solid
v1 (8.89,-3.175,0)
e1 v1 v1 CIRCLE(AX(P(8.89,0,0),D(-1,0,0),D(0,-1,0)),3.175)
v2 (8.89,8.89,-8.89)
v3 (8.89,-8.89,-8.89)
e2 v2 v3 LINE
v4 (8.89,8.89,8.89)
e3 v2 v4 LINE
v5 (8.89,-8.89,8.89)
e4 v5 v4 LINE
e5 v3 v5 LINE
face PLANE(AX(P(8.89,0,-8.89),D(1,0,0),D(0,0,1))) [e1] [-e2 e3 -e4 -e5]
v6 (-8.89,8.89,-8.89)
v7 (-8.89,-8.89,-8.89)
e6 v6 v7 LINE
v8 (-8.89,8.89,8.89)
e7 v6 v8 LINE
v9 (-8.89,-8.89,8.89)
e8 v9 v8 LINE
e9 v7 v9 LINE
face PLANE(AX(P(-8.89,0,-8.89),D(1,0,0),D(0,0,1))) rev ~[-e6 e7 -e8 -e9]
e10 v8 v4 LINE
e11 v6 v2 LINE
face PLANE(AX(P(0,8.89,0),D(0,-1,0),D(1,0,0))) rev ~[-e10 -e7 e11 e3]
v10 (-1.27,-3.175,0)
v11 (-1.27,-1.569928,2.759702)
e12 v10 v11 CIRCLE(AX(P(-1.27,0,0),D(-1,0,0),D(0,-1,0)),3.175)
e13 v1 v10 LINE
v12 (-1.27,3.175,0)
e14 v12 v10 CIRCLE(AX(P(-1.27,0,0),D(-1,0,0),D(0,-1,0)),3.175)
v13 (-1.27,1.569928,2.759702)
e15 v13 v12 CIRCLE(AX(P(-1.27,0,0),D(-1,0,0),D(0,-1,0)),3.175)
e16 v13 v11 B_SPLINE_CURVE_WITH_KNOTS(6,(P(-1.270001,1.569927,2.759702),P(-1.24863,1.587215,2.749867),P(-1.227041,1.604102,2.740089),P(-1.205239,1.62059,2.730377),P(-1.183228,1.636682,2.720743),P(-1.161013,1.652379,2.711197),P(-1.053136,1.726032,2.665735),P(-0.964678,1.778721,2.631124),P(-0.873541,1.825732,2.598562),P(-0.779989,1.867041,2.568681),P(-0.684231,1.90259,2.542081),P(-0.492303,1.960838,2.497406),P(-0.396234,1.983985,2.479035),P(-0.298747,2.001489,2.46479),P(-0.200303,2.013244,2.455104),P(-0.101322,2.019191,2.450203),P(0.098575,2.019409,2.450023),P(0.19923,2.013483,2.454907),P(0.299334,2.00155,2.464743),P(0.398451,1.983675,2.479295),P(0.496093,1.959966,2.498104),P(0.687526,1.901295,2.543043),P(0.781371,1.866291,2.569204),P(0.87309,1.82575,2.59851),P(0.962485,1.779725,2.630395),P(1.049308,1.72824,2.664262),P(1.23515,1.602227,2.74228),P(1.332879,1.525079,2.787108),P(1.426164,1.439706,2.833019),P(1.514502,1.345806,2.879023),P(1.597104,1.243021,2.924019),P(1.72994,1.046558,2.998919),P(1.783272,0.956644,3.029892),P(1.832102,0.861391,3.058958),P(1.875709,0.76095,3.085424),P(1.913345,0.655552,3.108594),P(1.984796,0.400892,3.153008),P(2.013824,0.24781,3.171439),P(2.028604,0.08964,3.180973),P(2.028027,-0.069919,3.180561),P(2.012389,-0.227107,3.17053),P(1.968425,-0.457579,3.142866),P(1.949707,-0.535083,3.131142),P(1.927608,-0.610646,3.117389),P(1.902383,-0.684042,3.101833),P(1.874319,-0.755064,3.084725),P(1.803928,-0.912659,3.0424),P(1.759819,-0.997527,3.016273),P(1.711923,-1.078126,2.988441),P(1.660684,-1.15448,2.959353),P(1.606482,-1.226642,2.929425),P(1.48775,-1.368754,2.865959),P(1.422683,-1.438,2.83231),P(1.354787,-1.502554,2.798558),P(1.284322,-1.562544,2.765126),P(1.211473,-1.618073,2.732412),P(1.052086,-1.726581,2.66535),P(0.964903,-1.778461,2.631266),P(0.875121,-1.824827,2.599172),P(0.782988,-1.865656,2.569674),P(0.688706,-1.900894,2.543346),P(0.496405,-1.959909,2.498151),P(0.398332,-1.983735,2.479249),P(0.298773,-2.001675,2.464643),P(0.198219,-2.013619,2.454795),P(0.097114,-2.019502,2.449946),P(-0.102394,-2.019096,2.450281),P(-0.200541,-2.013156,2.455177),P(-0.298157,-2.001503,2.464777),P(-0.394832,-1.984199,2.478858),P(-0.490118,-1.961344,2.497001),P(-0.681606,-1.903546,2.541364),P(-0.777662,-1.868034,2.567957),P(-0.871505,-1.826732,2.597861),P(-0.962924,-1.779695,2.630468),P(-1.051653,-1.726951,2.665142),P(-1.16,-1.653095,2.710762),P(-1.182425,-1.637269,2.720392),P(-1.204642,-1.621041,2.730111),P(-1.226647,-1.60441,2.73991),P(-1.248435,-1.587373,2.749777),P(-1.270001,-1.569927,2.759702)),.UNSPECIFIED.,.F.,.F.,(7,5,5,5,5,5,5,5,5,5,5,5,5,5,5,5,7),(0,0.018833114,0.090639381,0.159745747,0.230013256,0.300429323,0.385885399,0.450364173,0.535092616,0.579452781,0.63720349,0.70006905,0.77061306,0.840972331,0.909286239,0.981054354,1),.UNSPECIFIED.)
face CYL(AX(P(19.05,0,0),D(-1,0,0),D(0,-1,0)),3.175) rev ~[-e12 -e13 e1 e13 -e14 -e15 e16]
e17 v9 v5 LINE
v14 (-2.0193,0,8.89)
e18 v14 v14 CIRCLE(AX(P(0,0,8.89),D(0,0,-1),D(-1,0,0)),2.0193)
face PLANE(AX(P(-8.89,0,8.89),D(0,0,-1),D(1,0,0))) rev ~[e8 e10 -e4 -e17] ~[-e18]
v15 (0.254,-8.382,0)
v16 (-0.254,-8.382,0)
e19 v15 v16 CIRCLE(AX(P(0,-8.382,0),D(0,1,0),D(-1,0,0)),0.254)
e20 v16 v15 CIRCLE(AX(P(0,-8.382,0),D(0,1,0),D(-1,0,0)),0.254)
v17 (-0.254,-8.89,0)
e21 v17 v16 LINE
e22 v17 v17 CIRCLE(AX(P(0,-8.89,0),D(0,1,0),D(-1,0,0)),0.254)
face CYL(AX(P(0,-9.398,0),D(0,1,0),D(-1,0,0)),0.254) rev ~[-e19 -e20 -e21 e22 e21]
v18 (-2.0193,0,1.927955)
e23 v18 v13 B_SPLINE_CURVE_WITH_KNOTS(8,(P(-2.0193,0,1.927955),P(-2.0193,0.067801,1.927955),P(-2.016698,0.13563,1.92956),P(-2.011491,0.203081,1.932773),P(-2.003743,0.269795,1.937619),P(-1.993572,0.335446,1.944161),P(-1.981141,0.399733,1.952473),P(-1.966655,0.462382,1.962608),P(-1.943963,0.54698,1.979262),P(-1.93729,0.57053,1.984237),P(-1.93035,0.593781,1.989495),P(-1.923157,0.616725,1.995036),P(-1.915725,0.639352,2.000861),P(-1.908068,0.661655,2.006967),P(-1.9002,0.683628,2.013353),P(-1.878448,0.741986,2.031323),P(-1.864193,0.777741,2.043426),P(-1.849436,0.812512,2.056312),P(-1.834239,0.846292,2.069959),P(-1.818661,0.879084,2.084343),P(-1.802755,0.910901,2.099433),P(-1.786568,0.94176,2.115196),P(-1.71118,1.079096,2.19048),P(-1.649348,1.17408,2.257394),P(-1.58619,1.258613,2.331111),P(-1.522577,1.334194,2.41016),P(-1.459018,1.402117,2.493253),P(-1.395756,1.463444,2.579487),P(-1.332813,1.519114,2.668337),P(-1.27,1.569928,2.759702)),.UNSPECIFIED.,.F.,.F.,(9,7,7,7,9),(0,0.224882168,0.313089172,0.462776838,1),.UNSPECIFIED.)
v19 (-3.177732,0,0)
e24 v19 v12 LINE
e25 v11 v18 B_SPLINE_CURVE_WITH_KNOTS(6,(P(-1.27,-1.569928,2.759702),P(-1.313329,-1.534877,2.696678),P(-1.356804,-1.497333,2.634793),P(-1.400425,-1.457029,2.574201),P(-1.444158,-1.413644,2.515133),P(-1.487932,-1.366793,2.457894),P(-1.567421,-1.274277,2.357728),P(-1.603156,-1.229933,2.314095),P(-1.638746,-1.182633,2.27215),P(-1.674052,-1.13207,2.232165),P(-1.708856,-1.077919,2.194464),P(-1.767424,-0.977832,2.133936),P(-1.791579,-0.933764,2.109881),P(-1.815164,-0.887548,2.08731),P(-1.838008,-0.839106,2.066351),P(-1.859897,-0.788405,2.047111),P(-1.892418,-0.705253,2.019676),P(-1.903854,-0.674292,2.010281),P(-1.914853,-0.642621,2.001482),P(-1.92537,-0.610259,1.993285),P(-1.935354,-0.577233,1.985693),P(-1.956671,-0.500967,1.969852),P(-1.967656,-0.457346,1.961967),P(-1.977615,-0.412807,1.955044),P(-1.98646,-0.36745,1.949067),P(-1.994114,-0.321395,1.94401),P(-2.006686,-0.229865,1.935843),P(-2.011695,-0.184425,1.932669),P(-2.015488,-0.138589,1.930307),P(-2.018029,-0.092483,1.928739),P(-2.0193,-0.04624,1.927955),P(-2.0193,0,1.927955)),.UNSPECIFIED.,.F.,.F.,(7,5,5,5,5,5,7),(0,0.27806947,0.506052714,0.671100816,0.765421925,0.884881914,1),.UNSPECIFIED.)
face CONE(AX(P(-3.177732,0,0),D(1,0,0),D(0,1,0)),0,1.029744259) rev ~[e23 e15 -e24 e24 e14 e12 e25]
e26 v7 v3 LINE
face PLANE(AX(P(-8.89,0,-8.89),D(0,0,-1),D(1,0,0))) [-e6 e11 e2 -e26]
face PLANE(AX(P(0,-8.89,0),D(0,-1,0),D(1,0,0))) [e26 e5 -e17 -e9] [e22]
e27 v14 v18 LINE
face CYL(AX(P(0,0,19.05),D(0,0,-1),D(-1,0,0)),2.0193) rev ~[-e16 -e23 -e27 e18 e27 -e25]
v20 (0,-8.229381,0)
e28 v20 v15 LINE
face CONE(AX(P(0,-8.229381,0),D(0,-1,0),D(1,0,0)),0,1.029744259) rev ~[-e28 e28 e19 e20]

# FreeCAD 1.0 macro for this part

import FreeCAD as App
import Part
import Sketcher

V = App.Vector
Q = App.Units.Quantity

doc = App.newDocument("Part")
body = doc.addObject("PartDesign::Body", "Body")

sketch1 = body.newObject("Sketcher::SketchObject", "Sketch")
sketch1.AttachmentSupport = (doc.getObject("XZ_Plane"), [""])
sketch1.MapMode = "FlatFace"
sketch1.addGeometry([
    Part.LineSegment(V(-9, 9, 0), V(-9, -9, 0)),
    Part.LineSegment(V(-9, -9, 0), V(9, -9, 0)),
    Part.LineSegment(V(9, -9, 0), V(9, 9, 0)),
    Part.LineSegment(V(9, 9, 0), V(-9, 9, 0)),
], False)
sketch1.addConstraint([
    Sketcher.Constraint("Coincident", 0, 2, 1, 1),
    Sketcher.Constraint("Coincident", 1, 2, 2, 1),
    Sketcher.Constraint("Coincident", 2, 2, 3, 1),
    Sketcher.Constraint("Coincident", 3, 2, 0, 1),
    Sketcher.Constraint("Vertical", 0),
    Sketcher.Constraint("Horizontal", 1),
    Sketcher.Constraint("Vertical", 2),
    Sketcher.Constraint("Horizontal", 3),
    Sketcher.Constraint("Symmetric", 0, 2, 2, 2, -1, 1),
    Sketcher.Constraint("Equal", 3, 0),
    Sketcher.Constraint("DistanceX", 1, 1, 1, 2, Q("0.7 in")),
])
pad1 = body.newObject("PartDesign::Pad", "Pad")
pad1.Profile = sketch1
pad1.Length = Q("0.7 in")
pad1.Midplane = True

sketch2 = body.newObject("Sketcher::SketchObject", "Sketch001")
sketch2.AttachmentSupport = (doc.getObject("XZ_Plane"), [""])
sketch2.MapMode = "FlatFace"
sketch2.AttachmentOffset = App.Placement(V(0, 0, 0.35 * 25.4), App.Rotation())
sketch2.addGeometry(Part.Circle(V(0, 0, 0), V(0, 0, 1), 0.25), False)
sketch2.addConstraint([
    Sketcher.Constraint("Coincident", 0, 3, -1, 1),
    Sketcher.Constraint("Diameter", 0, Q("0.02 in")),
])
doc.recompute()
hole = body.newObject("PartDesign::Hole", "Hole")
hole.Profile = sketch2
hole.ThreadType = "None"
hole.Diameter = Q("0.02 in")
hole.DepthType = "Dimension"
hole.Depth = Q("0.02 in")
hole.DrillPoint = "Angled"
hole.DrillPointAngle = 118

sketch3 = body.newObject("Sketcher::SketchObject", "Sketch002")
sketch3.AttachmentSupport = (doc.getObject("XY_Plane"), [""])
sketch3.MapMode = "FlatFace"
sketch3.AttachmentOffset = App.Placement(V(0, 0, 0.35 * 25.4), App.Rotation())
sketch3.addGeometry(Part.Circle(V(0, 0, 0), V(0, 0, 1), 2), False)
sketch3.addConstraint([
    Sketcher.Constraint("Coincident", 0, 3, -1, 1),
    Sketcher.Constraint("Diameter", 0, Q("0.159 in")),
])
doc.recompute()
hole2 = body.newObject("PartDesign::Hole", "Hole001")
hole2.Profile = sketch3
hole2.ThreadType = "None"
hole2.Diameter = Q("0.159 in")
hole2.DepthType = "Dimension"
hole2.Depth = Q("0.4 in")
hole2.DrillPoint = "Angled"
hole2.DrillPointAngle = 118

sketch4 = body.newObject("Sketcher::SketchObject", "Sketch003")
sketch4.AttachmentSupport = (doc.getObject("YZ_Plane"), [""])
sketch4.MapMode = "FlatFace"
sketch4.AttachmentOffset = App.Placement(V(0, 0, 0.35 * 25.4), App.Rotation())
sketch4.addGeometry(Part.Circle(V(0, 0, 0), V(0, 0, 1), 3.2), False)
sketch4.addConstraint([
    Sketcher.Constraint("Coincident", 0, 3, -1, 1),
    Sketcher.Constraint("Diameter", 0, Q("0.25 in")),
])
doc.recompute()
hole3 = body.newObject("PartDesign::Hole", "Hole002")
hole3.Profile = sketch4
hole3.ThreadType = "None"
hole3.Diameter = Q("0.25 in")
hole3.DepthType = "Dimension"
hole3.Depth = Q("0.4 in")
hole3.DrillPoint = "Angled"
hole3.DrillPointAngle = 118

doc.recompute()
